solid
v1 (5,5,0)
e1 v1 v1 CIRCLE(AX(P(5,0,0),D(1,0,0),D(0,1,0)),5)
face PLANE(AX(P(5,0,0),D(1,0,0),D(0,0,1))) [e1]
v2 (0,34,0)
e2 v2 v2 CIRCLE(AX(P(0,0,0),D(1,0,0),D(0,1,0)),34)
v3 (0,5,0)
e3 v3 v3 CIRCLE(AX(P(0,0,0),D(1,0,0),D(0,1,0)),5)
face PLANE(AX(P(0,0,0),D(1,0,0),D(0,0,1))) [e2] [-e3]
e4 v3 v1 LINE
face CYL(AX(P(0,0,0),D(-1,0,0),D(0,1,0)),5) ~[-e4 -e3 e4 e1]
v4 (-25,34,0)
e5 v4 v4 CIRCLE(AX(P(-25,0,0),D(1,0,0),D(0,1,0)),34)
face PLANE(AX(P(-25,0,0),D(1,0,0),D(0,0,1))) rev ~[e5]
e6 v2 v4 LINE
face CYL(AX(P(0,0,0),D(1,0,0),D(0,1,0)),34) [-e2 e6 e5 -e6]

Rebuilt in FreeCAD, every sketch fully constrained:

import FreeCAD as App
import Part
import Sketcher

V = App.Vector
Q = App.Units.Quantity

doc = App.newDocument("Part")
body = doc.addObject("PartDesign::Body", "Body")

sketch1 = body.newObject("Sketcher::SketchObject", "Sketch")
sketch1.AttachmentSupport = (doc.getObject("YZ_Plane"), [""])
sketch1.MapMode = "FlatFace"
sketch1.addGeometry(Part.Circle(V(0, 0, 0), V(0, 0, 1), 34), False)
sketch1.addConstraint([
    Sketcher.Constraint("Coincident", 0, 3, -1, 1),
    Sketcher.Constraint("Diameter", 0, Q("68 mm")),
])
pad1 = body.newObject("PartDesign::Pad", "Pad")
pad1.Profile = sketch1
pad1.Length = 25
pad1.Reversed = True

sketch2 = body.newObject("Sketcher::SketchObject", "Sketch001")
sketch2.AttachmentSupport = (doc.getObject("YZ_Plane"), [""])
sketch2.MapMode = "FlatFace"
sketch2.addGeometry(Part.Circle(V(0, 0, 0), V(0, 0, 1), 5), False)
sketch2.addConstraint([
    Sketcher.Constraint("Coincident", 0, 3, -1, 1),
    Sketcher.Constraint("Diameter", 0, Q("10 mm")),
])
pad2 = body.newObject("PartDesign::Pad", "Pad001")
pad2.Profile = sketch2
pad2.Length = 5

doc.recompute()
